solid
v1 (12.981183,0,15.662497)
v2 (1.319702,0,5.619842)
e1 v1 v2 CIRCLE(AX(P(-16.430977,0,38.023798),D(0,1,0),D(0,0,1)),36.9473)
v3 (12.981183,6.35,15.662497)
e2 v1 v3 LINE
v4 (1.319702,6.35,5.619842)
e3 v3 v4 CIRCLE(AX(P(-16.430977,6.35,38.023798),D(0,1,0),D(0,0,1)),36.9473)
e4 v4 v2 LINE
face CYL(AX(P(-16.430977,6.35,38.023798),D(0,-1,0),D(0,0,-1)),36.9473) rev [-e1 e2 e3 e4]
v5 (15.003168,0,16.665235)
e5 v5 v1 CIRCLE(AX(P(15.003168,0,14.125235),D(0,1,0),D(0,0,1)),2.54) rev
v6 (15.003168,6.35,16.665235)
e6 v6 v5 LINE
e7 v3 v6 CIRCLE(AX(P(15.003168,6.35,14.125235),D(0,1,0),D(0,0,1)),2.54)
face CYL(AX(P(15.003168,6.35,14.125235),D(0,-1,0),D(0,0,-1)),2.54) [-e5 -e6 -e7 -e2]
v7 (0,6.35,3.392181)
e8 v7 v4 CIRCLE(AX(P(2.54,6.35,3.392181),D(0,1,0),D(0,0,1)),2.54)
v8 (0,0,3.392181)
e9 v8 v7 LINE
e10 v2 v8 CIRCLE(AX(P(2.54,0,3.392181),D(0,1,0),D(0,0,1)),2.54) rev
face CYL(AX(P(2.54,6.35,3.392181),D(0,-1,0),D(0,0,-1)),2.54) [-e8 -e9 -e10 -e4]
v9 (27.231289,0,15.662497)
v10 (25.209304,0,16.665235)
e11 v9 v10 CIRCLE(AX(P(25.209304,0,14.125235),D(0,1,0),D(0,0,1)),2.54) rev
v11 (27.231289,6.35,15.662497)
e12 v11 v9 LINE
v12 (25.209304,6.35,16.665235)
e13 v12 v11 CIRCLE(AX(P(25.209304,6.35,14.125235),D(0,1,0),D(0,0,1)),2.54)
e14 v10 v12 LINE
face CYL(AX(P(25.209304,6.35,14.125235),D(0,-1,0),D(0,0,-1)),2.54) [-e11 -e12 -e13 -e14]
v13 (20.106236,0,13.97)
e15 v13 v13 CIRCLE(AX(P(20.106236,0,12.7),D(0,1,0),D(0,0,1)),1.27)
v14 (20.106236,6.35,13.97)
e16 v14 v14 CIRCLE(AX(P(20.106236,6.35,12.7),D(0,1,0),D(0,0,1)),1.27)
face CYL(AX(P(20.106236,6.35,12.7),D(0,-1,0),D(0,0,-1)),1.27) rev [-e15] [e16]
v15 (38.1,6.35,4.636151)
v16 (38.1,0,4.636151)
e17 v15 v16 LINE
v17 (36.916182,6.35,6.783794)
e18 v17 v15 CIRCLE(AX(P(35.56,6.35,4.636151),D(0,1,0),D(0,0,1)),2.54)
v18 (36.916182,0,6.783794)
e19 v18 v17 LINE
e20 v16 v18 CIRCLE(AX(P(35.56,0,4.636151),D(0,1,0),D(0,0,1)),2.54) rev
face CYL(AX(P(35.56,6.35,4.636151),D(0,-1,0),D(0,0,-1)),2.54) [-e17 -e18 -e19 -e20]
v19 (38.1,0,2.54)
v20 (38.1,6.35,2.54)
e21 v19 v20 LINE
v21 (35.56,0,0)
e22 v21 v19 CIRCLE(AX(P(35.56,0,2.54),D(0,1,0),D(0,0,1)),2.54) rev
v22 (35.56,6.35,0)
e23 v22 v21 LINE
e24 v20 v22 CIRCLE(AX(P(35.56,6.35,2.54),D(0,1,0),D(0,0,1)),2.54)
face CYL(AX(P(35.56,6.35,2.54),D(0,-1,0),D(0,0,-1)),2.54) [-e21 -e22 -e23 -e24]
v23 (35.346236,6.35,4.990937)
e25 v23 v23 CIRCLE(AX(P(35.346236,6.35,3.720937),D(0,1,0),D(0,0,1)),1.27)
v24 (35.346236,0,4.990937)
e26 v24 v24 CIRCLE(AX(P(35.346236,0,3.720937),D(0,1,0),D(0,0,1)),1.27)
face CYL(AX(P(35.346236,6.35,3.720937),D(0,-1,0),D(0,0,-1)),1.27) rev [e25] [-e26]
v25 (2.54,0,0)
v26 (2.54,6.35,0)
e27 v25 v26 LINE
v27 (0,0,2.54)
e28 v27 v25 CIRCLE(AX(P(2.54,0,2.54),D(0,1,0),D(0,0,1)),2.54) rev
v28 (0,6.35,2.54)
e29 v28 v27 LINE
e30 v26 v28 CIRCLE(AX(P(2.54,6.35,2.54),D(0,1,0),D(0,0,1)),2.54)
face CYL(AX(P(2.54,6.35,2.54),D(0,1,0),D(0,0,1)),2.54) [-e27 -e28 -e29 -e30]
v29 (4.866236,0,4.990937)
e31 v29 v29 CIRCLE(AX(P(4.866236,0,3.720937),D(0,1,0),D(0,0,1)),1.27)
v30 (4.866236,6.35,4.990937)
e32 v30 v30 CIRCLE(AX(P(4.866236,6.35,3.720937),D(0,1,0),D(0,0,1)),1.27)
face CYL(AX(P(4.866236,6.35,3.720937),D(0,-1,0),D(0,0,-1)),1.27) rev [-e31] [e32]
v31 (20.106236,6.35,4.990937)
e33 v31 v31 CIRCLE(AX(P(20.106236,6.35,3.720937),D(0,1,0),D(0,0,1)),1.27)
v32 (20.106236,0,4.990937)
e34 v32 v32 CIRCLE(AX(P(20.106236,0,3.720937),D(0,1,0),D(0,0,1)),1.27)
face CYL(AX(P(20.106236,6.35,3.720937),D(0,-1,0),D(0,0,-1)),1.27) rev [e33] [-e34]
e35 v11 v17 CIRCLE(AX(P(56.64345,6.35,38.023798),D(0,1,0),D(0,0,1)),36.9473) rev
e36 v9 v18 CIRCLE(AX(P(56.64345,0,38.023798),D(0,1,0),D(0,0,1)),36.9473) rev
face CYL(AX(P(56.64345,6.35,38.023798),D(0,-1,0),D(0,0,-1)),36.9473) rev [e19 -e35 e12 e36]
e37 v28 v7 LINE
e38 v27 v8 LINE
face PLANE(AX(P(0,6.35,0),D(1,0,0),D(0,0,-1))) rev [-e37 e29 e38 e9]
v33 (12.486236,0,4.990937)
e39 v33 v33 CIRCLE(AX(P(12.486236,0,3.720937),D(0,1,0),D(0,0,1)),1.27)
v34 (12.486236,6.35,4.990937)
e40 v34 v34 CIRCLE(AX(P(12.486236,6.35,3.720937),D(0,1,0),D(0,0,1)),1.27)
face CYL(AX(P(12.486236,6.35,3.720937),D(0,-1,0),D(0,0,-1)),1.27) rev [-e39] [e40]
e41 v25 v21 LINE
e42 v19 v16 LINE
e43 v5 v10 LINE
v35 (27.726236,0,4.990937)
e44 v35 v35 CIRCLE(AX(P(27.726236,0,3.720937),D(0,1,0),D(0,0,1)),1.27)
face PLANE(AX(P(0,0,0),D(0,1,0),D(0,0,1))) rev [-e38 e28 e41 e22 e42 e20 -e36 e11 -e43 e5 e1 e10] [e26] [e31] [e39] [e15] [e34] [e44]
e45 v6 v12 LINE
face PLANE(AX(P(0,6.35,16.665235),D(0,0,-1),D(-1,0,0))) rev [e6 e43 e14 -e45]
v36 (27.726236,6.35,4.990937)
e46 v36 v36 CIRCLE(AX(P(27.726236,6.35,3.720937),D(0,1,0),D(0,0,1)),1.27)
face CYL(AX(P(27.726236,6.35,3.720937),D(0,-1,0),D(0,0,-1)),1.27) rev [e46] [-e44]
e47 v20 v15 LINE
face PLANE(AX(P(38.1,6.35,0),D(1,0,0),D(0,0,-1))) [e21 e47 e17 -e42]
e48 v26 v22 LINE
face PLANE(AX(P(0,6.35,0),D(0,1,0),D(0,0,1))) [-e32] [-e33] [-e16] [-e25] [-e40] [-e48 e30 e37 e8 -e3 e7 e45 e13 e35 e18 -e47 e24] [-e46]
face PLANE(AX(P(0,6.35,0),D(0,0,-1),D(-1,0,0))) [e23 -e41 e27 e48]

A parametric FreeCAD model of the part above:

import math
import FreeCAD as App
import Part
import Sketcher
Q = App.Units.Quantity


def edges_at(feature, points):
    """Names of the edges that pass closest to the given points."""
    edges = feature.Shape.Edges
    near = lambda p: min(range(len(edges)), key=lambda i: edges[i].distToShape(Part.Vertex(*p))[0])
    return sorted({f"Edge{near(p) + 1}" for p in points})

doc = App.newDocument("Part")
params = doc.addObject("Spreadsheet::Sheet", "Params")
for row, (alias, value) in enumerate([
    ("sketch1_diameter", "0.1 in"),
    ("sketch1_width", "1.5 in"),
    ("pad1_length", "0.25 in"),
    ("fillet_radius", "0.1 in"),
], start=1):
    params.set(f"A{row}", alias)
    params.set(f"B{row}", "=" + value)
    params.setAlias(f"B{row}", alias)

body = doc.addObject("PartDesign::Body", "Body")

# Sketch on XZ plane
sketch1 = body.newObject("Sketcher::SketchObject", "Sketch")
sketch1.AttachmentSupport = (doc.getObject("XZ_Plane"), [""])
sketch1.MapMode = "FlatFace"
sketch1.addGeometry([
    Part.LineSegment(App.Vector(0, 0, 0), App.Vector(0, 4.931111, 0)),  # 0
    Part.ArcOfCircle(Part.Circle(App.Vector(-16.430977, 38.023798, 0), App.Vector(0, 0, 1), 36.9473), math.radians(-63.594965), math.radians(-35.315742)),  # 1
    Part.LineSegment(App.Vector(13.717235, 16.665235, 0), App.Vector(26.495237, 16.665235, 0)),  # 2
    Part.ArcOfCircle(Part.Circle(App.Vector(56.64345, 38.023798, 0), App.Vector(0, 0, 1), 36.9473), math.radians(-144.684258), math.radians(-120.125066)),  # 3
    Part.LineSegment(App.Vector(38.1, 6.066898, 0), App.Vector(38.1, 0, 0)),  # 4
    Part.LineSegment(App.Vector(38.1, 0, 0), App.Vector(0, 0, 0)),  # 5
    Part.Circle(App.Vector(20.106236, 12.7, 0), App.Vector(0, 0, 1), 1.27),  # 6
    Part.Circle(App.Vector(4.866236, 3.720937, 0), App.Vector(0, 0, 1), 1.27),  # 7
    Part.Circle(App.Vector(12.486236, 3.720937, 0), App.Vector(0, 0, 1), 1.27),  # 8
    Part.Circle(App.Vector(20.106236, 3.720937, 0), App.Vector(0, 0, 1), 1.27),  # 9
    Part.Circle(App.Vector(27.726236, 3.720937, 0), App.Vector(0, 0, 1), 1.27),  # 10
    Part.Circle(App.Vector(35.346236, 3.720937, 0), App.Vector(0, 0, 1), 1.27),  # 11
], False)
sketch1.addConstraint([
    Sketcher.Constraint("Coincident", 0, 2, 1, 1),
    Sketcher.Constraint("Coincident", 1, 2, 2, 1),
    Sketcher.Constraint("Coincident", 2, 2, 3, 1),
    Sketcher.Constraint("Coincident", 3, 2, 4, 1),
    Sketcher.Constraint("Coincident", 4, 2, 5, 1),
    Sketcher.Constraint("Coincident", 5, 2, 0, 1),
    Sketcher.Constraint("Vertical", 0),
    Sketcher.Constraint("Horizontal", 2),
    Sketcher.Constraint("Vertical", 4),
    Sketcher.Constraint("Horizontal", 5),
    Sketcher.Constraint("Coincident", 5, 2, -1, 1),
    Sketcher.Constraint("Equal", 1, 3),
    Sketcher.Constraint("Equal", 6, 7),
    Sketcher.Constraint("Equal", 7, 8),
    Sketcher.Constraint("Equal", 8, 9),
    Sketcher.Constraint("Equal", 9, 10),
    Sketcher.Constraint("Equal", 10, 11),
    Sketcher.Constraint("Horizontal", 1, 3, 3, 3),
    Sketcher.Constraint("Horizontal", 7, 3, 8, 3),
    Sketcher.Constraint("Horizontal", 8, 3, 9, 3),
    Sketcher.Constraint("Horizontal", 9, 3, 10, 3),
    Sketcher.Constraint("Horizontal", 10, 3, 11, 3),
    Sketcher.Constraint("Vertical", 6, 3, 9, 3),
    Sketcher.Constraint("Diameter", 6, Q("0.1 in")),
    Sketcher.Constraint("DistanceX", 5, 2, 5, 1, Q("1.5 in")),
    Sketcher.Constraint("DistanceY", -1, 1, 6, 3, Q("0.5 in")),
    Sketcher.Constraint("DistanceX", 7, 3, 6, 3, Q("0.6 in")),
    Sketcher.Constraint("DistanceX", 7, 3, 8, 3, Q("0.3 in")),
    Sketcher.Constraint("DistanceX", 9, 3, 10, 3, Q("0.3 in")),
    Sketcher.Constraint("DistanceX", 10, 3, 11, 3, Q("0.3 in")),
    Sketcher.Constraint("Radius", 1, 36.9473),
    Sketcher.Constraint("DistanceY", -1, 1, 1, 3, Q("1.4969999 in")),
    Sketcher.Constraint("DistanceX", 2, 1, 2, 2, 12.778002),
    Sketcher.Constraint("DistanceY", 4, 2, 4, 1, 6.066898),
    Sketcher.Constraint("DistanceY", 0, 1, 0, 2, 4.931111),
    Sketcher.Constraint("DistanceX", 1, 2, 6, 3, 6.389001),
    Sketcher.Constraint("DistanceY", 7, 3, 1, 3, 34.302861),
])
sketch1.setExpression("Constraints[23]", "Params.sketch1_diameter")
sketch1.setExpression("Constraints[24]", "Params.sketch1_width")
pad1 = body.newObject("PartDesign::Pad", "Pad")
pad1.Profile = sketch1
pad1.setExpression("Length", "Params.pad1_length")
pad1.Reversed = True
doc.recompute()

fillet = body.newObject("PartDesign::Fillet", "Fillet")
fillet.Base = (pad1, edges_at(pad1, [
    (13.717, 3.175, 16.665),
    (0, 3.175, 4.931),
    (0, 3.175, 0),
    (38.1, 3.175, 0),
    (38.1, 3.175, 6.067),
    (26.495, 3.175, 16.665),
]))
fillet.setExpression("Radius", "Params.fillet_radius")

doc.recompute()
